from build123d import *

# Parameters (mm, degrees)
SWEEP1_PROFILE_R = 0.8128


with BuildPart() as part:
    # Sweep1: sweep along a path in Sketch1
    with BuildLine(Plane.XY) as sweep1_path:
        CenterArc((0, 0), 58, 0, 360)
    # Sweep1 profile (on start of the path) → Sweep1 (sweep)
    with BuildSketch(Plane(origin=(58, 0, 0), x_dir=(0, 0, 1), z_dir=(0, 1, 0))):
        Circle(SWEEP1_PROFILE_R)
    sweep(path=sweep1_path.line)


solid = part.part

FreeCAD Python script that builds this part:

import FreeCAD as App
import Part
import Sketcher
from FreeCAD import Vector

doc = App.newDocument("Part")
params = doc.addObject("Spreadsheet::Sheet", "Params")
for row, (alias, value) in enumerate([
    ("sketch2_diameter", "116 mm"),
], start=1):
    params.set(f"A{row}", alias)
    params.set(f"B{row}", "=" + value)
    params.setAlias(f"B{row}", alias)

body = doc.addObject("PartDesign::Body", "Body")

# Sketch on XZ plane
sketch1 = body.newObject("Sketcher::SketchObject", "Sketch")
sketch1.AttachmentSupport = (doc.getObject("XZ_Plane"), [""])
sketch1.MapMode = "FlatFace"
sketch1.addGeometry(Part.Circle(Vector(58, 0, 0), Vector(0, 0, 1), 0.8), False)
sketch1.addConstraint([
    Sketcher.Constraint("PointOnObject", 0, 3, -1),
    Sketcher.Constraint("DistanceX", -1, 1, 0, 3, 58.0),
    Sketcher.Constraint("Diameter", 0, 1.6256),
])

# Sketch on XY plane
sketch2 = body.newObject("Sketcher::SketchObject", "Sketch001")
sketch2.AttachmentSupport = (doc.getObject("XY_Plane"), [""])
sketch2.MapMode = "FlatFace"
sketch2.addGeometry(Part.Circle(Vector(0, 0, 0), Vector(0, 0, 1), 58), False)
sketch2.addConstraint([
    Sketcher.Constraint("Coincident", 0, 3, -1, 1),
    Sketcher.Constraint("Diameter", 0, 116.0),
])
sketch2.setExpression("Constraints[1]", "Params.sketch2_diameter")
doc.recompute()

additivepipe = body.newObject("PartDesign::AdditivePipe", "AdditivePipe")
additivepipe.Profile = sketch1
additivepipe.Spine = (sketch2, ["Edge1"])

doc.recompute()
